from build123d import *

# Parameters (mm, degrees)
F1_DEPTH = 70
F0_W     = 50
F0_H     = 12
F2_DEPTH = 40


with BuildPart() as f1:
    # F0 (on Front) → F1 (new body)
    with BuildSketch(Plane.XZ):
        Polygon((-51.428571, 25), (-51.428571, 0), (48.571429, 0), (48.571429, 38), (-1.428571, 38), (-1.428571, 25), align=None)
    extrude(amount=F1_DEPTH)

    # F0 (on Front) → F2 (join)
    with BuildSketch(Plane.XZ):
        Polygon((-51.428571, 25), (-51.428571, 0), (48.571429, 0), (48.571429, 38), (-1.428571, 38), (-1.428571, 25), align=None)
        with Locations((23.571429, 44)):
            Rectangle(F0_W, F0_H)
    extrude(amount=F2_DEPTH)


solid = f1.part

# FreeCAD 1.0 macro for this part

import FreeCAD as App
import Part
import Sketcher
from FreeCAD import Vector
Q = App.Units.Quantity


def add_polygon(sketch, points):
    """Adds a closed chain of lines whose ends are joined by coincident constraints."""
    first, n = sketch.GeometryCount, len(points)
    for a, b in zip(points, points[1:] + points[:1]):
        sketch.addGeometry(Part.LineSegment(App.Vector(*a, 0), App.Vector(*b, 0)), False)
    for i in range(n):
        sketch.addConstraint(Sketcher.Constraint("Coincident", first + i, 2, first + (i + 1) % n, 1))

doc = App.newDocument("Part")
body = doc.addObject("PartDesign::Body", "Body")

sketch1 = doc.addObject("Sketcher::SketchObject", "Sketch")
body.addObject(sketch1)
sketch1.AttachmentSupport = (doc.XZ_Plane, [""])
sketch1.MapMode = "FlatFace"
add_polygon(sketch1, [(-51, 25), (-51, 0), (49, 0), (49, 38), (-1, 38), (-1, 25)])
sketch1.addConstraint(Sketcher.Constraint("Vertical", 0))
sketch1.addConstraint(Sketcher.Constraint("Horizontal", 1))
sketch1.addConstraint(Sketcher.Constraint("Vertical", 2))
sketch1.addConstraint(Sketcher.Constraint("Horizontal", 3))
sketch1.addConstraint(Sketcher.Constraint("Vertical", 4))
sketch1.addConstraint(Sketcher.Constraint("Horizontal", 5))
sketch1.addConstraint(Sketcher.Constraint("PointOnObject", 0, 2, -1))
sketch1.addConstraint(Sketcher.Constraint("Equal", 3, 5))
sketch1.addConstraint(Sketcher.Constraint("DistanceX", 1, 1, 1, 2, Q("100 mm")))
sketch1.addConstraint(Sketcher.Constraint("DistanceY", 0, 2, 0, 1, Q("25 mm")))
sketch1.addConstraint(Sketcher.Constraint("DistanceY", 2, 1, 2, 2, Q("38 mm")))
sketch1.addConstraint(Sketcher.Constraint("DistanceX", 0, 2, -1, 1, Q("51.428571 mm")))
pad1 = doc.addObject("PartDesign::Pad", "Pad")
body.addObject(pad1)
pad1.Profile = sketch1
pad1.Length = 70

sketch2 = doc.addObject("Sketcher::SketchObject", "Sketch001")
body.addObject(sketch2)
sketch2.AttachmentSupport = (doc.XZ_Plane, [""])
sketch2.MapMode = "FlatFace"
add_polygon(sketch2, [(-51, 25), (-51, 0), (49, 0), (49, 50), (-1, 50), (-1, 25)])
sketch2.addConstraint(Sketcher.Constraint("Vertical", 0))
sketch2.addConstraint(Sketcher.Constraint("Horizontal", 1))
sketch2.addConstraint(Sketcher.Constraint("Vertical", 2))
sketch2.addConstraint(Sketcher.Constraint("Horizontal", 3))
sketch2.addConstraint(Sketcher.Constraint("Vertical", 4))
sketch2.addConstraint(Sketcher.Constraint("Horizontal", 5))
sketch2.addConstraint(Sketcher.Constraint("PointOnObject", 0, 2, -1))
sketch2.addConstraint(Sketcher.Constraint("Equal", 3, 5))
sketch2.addConstraint(Sketcher.Constraint("Equal", 5, 2))
sketch2.addConstraint(Sketcher.Constraint("Equal", 0, 4))
sketch2.addConstraint(Sketcher.Constraint("DistanceX", 1, 1, 1, 2, Q("100 mm")))
sketch2.addConstraint(Sketcher.Constraint("DistanceX", 0, 2, -1, 1, Q("51.428571 mm")))
pad2 = doc.addObject("PartDesign::Pad", "Pad001")
body.addObject(pad2)
pad2.Profile = sketch2
pad2.Length = 40

doc.recompute()
